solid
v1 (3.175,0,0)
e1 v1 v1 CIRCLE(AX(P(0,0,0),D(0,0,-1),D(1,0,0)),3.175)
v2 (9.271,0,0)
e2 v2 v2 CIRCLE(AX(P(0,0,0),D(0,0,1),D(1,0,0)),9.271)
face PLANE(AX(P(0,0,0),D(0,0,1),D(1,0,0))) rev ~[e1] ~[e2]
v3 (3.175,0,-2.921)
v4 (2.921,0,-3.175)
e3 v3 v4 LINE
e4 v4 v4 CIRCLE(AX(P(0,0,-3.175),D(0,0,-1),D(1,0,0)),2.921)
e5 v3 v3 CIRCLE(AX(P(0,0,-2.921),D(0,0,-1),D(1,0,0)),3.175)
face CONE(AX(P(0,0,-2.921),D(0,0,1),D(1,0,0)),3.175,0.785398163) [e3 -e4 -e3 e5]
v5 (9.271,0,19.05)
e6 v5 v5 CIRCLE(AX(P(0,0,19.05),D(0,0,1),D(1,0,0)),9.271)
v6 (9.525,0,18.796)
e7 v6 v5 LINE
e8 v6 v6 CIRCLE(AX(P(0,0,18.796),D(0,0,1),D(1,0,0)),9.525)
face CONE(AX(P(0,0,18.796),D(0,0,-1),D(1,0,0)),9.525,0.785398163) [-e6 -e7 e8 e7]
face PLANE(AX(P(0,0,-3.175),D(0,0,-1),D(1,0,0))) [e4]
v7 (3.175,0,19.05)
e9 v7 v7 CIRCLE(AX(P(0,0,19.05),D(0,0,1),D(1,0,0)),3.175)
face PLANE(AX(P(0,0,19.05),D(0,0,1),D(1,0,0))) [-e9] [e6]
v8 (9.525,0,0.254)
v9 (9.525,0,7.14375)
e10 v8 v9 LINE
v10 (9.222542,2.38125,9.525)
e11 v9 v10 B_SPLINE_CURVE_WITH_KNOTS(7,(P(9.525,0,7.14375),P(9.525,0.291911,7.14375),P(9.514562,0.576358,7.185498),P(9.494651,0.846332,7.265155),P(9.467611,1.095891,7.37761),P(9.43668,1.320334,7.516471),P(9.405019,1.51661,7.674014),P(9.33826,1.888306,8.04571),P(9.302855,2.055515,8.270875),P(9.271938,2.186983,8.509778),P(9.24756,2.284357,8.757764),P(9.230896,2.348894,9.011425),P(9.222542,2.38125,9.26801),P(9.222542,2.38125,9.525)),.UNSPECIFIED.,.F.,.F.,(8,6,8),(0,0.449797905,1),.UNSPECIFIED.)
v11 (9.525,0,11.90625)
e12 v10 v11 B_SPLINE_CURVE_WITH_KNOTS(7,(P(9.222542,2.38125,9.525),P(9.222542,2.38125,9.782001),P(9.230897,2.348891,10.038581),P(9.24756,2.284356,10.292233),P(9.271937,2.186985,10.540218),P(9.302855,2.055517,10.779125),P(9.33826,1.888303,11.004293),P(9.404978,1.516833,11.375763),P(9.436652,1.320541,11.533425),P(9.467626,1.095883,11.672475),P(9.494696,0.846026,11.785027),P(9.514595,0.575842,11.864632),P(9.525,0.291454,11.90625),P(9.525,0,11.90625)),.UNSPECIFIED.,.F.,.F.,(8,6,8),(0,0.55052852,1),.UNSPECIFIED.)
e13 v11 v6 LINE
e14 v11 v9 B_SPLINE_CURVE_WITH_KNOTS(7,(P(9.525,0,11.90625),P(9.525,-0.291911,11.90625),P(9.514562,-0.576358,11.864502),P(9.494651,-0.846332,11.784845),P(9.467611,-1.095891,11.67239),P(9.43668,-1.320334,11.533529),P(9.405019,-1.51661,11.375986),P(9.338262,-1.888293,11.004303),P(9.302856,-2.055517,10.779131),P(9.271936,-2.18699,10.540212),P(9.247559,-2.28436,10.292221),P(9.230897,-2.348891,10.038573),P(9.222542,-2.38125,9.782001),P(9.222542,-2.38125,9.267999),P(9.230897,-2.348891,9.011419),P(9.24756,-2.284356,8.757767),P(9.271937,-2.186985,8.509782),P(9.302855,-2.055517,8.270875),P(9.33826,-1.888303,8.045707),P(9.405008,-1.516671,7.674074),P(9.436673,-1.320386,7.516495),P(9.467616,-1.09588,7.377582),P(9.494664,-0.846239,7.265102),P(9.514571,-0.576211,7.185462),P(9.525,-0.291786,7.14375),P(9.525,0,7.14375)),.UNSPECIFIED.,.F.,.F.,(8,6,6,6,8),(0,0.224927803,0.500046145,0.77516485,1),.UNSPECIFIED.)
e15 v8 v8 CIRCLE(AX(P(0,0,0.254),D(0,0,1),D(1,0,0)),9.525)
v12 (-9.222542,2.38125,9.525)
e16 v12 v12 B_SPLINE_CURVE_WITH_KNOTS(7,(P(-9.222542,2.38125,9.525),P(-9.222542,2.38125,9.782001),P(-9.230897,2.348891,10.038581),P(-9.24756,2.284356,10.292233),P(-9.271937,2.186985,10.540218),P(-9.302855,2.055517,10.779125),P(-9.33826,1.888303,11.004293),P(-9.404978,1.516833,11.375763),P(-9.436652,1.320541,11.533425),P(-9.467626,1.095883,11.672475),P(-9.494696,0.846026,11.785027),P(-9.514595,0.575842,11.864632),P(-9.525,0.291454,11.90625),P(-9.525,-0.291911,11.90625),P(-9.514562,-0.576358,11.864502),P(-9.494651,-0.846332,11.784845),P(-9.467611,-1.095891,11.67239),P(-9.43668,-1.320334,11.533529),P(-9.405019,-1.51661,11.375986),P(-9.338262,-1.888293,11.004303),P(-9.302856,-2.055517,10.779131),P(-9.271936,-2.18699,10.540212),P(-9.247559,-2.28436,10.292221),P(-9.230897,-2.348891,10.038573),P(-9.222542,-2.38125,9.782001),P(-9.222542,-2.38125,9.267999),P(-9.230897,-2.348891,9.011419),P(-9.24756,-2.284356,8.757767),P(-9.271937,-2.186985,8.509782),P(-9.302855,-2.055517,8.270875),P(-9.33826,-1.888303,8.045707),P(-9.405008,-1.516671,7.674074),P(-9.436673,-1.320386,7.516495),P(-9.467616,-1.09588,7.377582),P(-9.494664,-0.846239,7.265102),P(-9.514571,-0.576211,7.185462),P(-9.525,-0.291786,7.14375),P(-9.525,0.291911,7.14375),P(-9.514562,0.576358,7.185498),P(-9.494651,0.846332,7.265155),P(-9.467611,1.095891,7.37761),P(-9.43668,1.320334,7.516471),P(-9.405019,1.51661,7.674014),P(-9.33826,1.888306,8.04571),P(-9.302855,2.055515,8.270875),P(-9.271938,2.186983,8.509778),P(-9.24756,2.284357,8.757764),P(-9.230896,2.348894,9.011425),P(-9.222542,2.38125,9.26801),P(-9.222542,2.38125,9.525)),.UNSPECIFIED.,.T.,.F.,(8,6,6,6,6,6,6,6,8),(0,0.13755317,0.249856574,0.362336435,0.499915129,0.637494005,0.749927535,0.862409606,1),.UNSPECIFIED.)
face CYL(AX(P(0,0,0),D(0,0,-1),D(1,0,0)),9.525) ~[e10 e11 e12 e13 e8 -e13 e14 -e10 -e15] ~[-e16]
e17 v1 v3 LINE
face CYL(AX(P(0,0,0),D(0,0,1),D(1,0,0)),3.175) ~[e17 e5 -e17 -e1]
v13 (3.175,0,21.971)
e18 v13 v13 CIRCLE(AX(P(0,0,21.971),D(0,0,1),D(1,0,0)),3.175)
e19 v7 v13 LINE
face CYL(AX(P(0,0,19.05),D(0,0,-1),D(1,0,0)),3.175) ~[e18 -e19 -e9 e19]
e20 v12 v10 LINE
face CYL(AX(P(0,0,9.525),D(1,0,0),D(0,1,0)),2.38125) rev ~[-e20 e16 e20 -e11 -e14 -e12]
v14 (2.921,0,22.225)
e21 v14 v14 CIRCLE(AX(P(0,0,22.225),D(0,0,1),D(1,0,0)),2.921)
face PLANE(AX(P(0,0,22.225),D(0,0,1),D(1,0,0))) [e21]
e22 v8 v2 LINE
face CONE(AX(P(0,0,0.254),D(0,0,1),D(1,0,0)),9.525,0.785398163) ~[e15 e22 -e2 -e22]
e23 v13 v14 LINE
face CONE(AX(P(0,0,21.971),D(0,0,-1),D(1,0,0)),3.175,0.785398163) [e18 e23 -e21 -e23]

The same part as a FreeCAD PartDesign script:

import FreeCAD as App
import Part
import Sketcher
Q = App.Units.Quantity


def edges_at(feature, points):
    """Names of the edges that pass closest to the given points."""
    edges = feature.Shape.Edges
    near = lambda p: min(range(len(edges)), key=lambda i: edges[i].distToShape(Part.Vertex(*p))[0])
    return sorted({f"Edge{near(p) + 1}" for p in points})

doc = App.newDocument("Part")
body = doc.addObject("PartDesign::Body", "Body")

# Sketch on XY plane
sketch1 = body.newObject("Sketcher::SketchObject", "Sketch")
sketch1.AttachmentSupport = (doc.getObject("XY_Plane"), [""])
sketch1.MapMode = "FlatFace"
sketch1.addGeometry(Part.Circle(App.Vector(0, 0, 0), App.Vector(0, 0, 1), 10), False)
sketch1.addConstraint([
    Sketcher.Constraint("Coincident", 0, 3, -1, 1),
    Sketcher.Constraint("Diameter", 0, Q("0.75 in")),
])
pad1 = body.newObject("PartDesign::Pad", "Pad")
pad1.Profile = sketch1
pad1.Length = Q("0.75 in")

# Sketch on XY plane
sketch2 = body.newObject("Sketcher::SketchObject", "Sketch001")
sketch2.AttachmentSupport = (doc.getObject("XY_Plane"), [""])
sketch2.MapMode = "FlatFace"
sketch2.addGeometry(Part.Circle(App.Vector(0, 0, 0), App.Vector(0, 0, 1), 3.2), False)
sketch2.addConstraint([
    Sketcher.Constraint("Coincident", 0, 3, -1, 1),
    Sketcher.Constraint("Diameter", 0, Q("0.25 in")),
])
pad2 = body.newObject("PartDesign::Pad", "Pad001")
pad2.Profile = sketch2
pad2.Length = Q("0.125 in")
pad2.Reversed = True

# Sketch on XY plane
sketch3 = body.newObject("Sketcher::SketchObject", "Sketch002")
sketch3.AttachmentSupport = (doc.getObject("XY_Plane"), [""])
sketch3.MapMode = "FlatFace"
sketch3.AttachmentOffset = App.Placement(App.Vector(0, 0, 0.75 * 25.4), App.Rotation())
sketch3.addGeometry(Part.Circle(App.Vector(0, 0, 0), App.Vector(0, 0, 1), 3.2), False)
sketch3.addConstraint([
    Sketcher.Constraint("Coincident", 0, 3, -1, 1),
    Sketcher.Constraint("Diameter", 0, Q("0.25 in")),
])
pad3 = body.newObject("PartDesign::Pad", "Pad002")
pad3.Profile = sketch3
pad3.Length = Q("0.125 in")
doc.recompute()

chamfer = body.newObject("PartDesign::Chamfer", "Chamfer")
chamfer.Base = (pad3, edges_at(pad3, [
    (-9.525, 0, 19.05),
    (-3.175, 0, -3.175),
    (-9.525, 0, 0),
    (-3.175, 0, 22.225),
]))
chamfer.Size = Q("0.01 in")

# Sketch on YZ plane
sketch4 = body.newObject("Sketcher::SketchObject", "Sketch003")
sketch4.AttachmentSupport = (doc.getObject("YZ_Plane"), [""])
sketch4.MapMode = "FlatFace"
sketch4.addGeometry(Part.Circle(App.Vector(0, 9.5, 0), App.Vector(0, 0, 1), 2.4), False)
sketch4.addConstraint([
    Sketcher.Constraint("PointOnObject", 0, 3, -2),
    Sketcher.Constraint("Diameter", 0, Q("0.1875 in")),
    Sketcher.Constraint("DistanceY", -1, 1, 0, 3, Q("0.375 in")),
])
pocket1 = body.newObject("PartDesign::Pocket", "Pocket")
pocket1.Profile = sketch4
pocket1.Length = Q("1 in")
pocket1.Midplane = True

doc.recompute()
